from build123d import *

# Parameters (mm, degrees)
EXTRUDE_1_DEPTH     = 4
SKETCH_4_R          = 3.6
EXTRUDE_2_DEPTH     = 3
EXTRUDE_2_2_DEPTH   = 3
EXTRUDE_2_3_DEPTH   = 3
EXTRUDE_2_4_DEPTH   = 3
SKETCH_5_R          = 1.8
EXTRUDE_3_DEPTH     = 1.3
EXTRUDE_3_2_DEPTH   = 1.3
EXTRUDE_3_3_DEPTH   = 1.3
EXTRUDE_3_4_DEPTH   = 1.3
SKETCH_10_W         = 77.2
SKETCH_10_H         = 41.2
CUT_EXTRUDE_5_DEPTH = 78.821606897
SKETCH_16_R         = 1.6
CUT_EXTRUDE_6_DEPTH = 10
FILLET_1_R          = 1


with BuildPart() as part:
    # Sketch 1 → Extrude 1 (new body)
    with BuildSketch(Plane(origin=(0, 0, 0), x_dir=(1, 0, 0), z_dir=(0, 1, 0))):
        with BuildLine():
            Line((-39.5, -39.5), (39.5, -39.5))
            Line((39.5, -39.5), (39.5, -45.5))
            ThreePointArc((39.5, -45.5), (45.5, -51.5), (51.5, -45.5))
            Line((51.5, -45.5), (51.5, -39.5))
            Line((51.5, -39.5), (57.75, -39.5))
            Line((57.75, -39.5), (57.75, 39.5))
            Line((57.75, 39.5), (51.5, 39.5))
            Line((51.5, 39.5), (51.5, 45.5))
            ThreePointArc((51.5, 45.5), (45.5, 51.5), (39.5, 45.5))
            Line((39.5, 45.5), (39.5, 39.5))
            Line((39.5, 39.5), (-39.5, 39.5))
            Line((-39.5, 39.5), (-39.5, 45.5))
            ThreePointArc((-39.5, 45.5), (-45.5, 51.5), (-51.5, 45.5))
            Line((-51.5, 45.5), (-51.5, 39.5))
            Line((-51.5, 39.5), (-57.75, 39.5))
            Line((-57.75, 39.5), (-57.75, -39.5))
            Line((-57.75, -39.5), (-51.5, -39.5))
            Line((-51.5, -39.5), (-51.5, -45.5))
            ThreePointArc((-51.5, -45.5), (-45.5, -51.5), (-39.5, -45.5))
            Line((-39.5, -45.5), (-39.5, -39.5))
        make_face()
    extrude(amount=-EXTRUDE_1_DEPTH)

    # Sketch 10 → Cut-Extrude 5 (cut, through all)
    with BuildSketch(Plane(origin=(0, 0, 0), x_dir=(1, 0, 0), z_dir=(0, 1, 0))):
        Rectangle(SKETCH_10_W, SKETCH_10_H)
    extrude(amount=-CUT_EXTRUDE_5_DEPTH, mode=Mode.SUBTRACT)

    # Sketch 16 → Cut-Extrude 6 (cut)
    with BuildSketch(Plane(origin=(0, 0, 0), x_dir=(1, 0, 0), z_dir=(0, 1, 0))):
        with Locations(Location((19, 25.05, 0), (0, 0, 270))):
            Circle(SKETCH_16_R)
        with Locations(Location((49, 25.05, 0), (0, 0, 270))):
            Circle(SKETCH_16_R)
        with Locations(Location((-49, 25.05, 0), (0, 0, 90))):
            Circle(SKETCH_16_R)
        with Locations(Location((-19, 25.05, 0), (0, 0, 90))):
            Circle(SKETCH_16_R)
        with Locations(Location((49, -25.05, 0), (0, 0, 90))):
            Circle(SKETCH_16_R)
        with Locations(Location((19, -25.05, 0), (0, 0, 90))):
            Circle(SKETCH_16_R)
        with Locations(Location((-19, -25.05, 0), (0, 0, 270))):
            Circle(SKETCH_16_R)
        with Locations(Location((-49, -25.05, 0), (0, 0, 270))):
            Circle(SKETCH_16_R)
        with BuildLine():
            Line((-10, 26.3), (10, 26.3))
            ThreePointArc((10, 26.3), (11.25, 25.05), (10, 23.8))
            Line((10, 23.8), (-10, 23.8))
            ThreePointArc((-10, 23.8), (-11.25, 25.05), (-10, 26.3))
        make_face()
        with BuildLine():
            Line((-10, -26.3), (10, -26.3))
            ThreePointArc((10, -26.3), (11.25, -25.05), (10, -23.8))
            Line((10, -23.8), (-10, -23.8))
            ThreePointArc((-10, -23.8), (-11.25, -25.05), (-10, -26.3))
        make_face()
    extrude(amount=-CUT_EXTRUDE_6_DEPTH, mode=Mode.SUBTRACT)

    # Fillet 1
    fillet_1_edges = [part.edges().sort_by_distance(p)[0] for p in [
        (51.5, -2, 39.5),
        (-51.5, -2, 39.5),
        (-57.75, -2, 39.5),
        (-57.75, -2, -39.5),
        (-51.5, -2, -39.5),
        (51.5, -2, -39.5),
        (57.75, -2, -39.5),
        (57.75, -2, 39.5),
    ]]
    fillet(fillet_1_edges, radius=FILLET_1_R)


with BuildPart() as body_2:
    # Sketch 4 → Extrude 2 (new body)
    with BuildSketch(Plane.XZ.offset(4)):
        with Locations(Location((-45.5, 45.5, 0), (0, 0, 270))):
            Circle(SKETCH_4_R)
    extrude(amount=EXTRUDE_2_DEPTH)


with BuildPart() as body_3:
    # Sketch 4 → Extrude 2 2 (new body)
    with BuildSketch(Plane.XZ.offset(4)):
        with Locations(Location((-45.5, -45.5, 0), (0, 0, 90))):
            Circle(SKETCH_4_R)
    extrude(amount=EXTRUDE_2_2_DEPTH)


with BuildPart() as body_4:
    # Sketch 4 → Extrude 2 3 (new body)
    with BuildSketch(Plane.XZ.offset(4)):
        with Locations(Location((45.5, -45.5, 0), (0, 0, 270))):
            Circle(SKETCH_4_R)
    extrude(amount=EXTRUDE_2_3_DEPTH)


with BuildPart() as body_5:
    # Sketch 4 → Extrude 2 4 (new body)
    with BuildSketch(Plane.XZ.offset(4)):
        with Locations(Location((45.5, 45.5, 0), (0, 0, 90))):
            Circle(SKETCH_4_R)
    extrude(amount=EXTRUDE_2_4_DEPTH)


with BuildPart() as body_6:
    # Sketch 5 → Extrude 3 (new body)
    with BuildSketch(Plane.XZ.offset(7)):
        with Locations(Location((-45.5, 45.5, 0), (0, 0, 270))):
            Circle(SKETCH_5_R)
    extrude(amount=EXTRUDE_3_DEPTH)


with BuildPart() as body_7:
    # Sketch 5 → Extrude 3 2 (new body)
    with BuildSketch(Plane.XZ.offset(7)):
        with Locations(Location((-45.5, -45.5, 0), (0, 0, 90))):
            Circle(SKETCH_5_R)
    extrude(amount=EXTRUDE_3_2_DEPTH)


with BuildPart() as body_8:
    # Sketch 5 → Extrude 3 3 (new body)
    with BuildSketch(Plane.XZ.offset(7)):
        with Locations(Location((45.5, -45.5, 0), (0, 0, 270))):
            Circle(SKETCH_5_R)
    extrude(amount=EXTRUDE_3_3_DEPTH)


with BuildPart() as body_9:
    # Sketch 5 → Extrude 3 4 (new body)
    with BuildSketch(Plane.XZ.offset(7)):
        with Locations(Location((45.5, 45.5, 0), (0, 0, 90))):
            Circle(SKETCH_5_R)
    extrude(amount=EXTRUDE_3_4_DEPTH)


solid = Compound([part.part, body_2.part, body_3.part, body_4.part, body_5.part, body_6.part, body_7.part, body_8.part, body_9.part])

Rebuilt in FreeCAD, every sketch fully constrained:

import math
import FreeCAD as App
import Part
import Sketcher
from FreeCAD import Vector
Q = App.Units.Quantity


def edges_at(feature, points):
    """Names of the edges that pass closest to the given points."""
    edges = feature.Shape.Edges
    near = lambda p: min(range(len(edges)), key=lambda i: edges[i].distToShape(Part.Vertex(*p))[0])
    return sorted({f"Edge{near(p) + 1}" for p in points})


def add_polygon(sketch, points):
    """Adds a closed chain of lines whose ends are joined by coincident constraints."""
    first, n = sketch.GeometryCount, len(points)
    for a, b in zip(points, points[1:] + points[:1]):
        sketch.addGeometry(Part.LineSegment(App.Vector(*a, 0), App.Vector(*b, 0)), False)
    for i in range(n):
        sketch.addConstraint(Sketcher.Constraint("Coincident", first + i, 2, first + (i + 1) % n, 1))

doc = App.newDocument("Part")
body = doc.addObject("PartDesign::Body", "Body")

# Sketch on XZ plane
sketch1 = body.newObject("Sketcher::SketchObject", "Sketch")
sketch1.AttachmentSupport = (doc.getObject("XZ_Plane"), [""])
sketch1.MapMode = "FlatFace"
sketch1.addGeometry(Part.LineSegment(Vector(-40, 40, 0), Vector(40, 40, 0)), False)
sketch1.addGeometry(Part.LineSegment(Vector(40, 40, 0), Vector(40, 46, 0)), False)
sketch1.addGeometry(Part.ArcOfCircle(Part.Circle(Vector(46, 46, 0), Vector(0, 0, 1), 6), math.radians(0), math.radians(180)), False)
sketch1.addGeometry(Part.LineSegment(Vector(52, 46, 0), Vector(52, 40, 0)), False)
sketch1.addGeometry(Part.LineSegment(Vector(52, 40, 0), Vector(58, 40, 0)), False)
sketch1.addGeometry(Part.LineSegment(Vector(58, 40, 0), Vector(58, -40, 0)), False)
sketch1.addGeometry(Part.LineSegment(Vector(58, -40, 0), Vector(52, -40, 0)), False)
sketch1.addGeometry(Part.LineSegment(Vector(52, -40, 0), Vector(52, -46, 0)), False)
sketch1.addGeometry(Part.ArcOfCircle(Part.Circle(Vector(46, -46, 0), Vector(0, 0, 1), 6), math.radians(180), math.radians(360)), False)
sketch1.addGeometry(Part.LineSegment(Vector(40, -46, 0), Vector(40, -40, 0)), False)
sketch1.addGeometry(Part.LineSegment(Vector(40, -40, 0), Vector(-40, -40, 0)), False)
sketch1.addGeometry(Part.LineSegment(Vector(-40, -40, 0), Vector(-40, -46, 0)), False)
sketch1.addGeometry(Part.ArcOfCircle(Part.Circle(Vector(-46, -46, 0), Vector(0, 0, 1), 6), math.radians(180), math.radians(360)), False)
sketch1.addGeometry(Part.LineSegment(Vector(-52, -46, 0), Vector(-52, -40, 0)), False)
sketch1.addGeometry(Part.LineSegment(Vector(-52, -40, 0), Vector(-58, -40, 0)), False)
sketch1.addGeometry(Part.LineSegment(Vector(-58, -40, 0), Vector(-58, 40, 0)), False)
sketch1.addGeometry(Part.LineSegment(Vector(-58, 40, 0), Vector(-52, 40, 0)), False)
sketch1.addGeometry(Part.LineSegment(Vector(-52, 40, 0), Vector(-52, 46, 0)), False)
sketch1.addGeometry(Part.ArcOfCircle(Part.Circle(Vector(-46, 46, 0), Vector(0, 0, 1), 6), math.radians(0), math.radians(180)), False)
sketch1.addGeometry(Part.LineSegment(Vector(-40, 46, 0), Vector(-40, 40, 0)), False)
sketch1.addConstraint(Sketcher.Constraint("Coincident", 0, 2, 1, 1))
sketch1.addConstraint(Sketcher.Constraint("Tangent", 1, 2, 2, 2))
sketch1.addConstraint(Sketcher.Constraint("Tangent", 2, 1, 3, 1))
sketch1.addConstraint(Sketcher.Constraint("Coincident", 3, 2, 4, 1))
sketch1.addConstraint(Sketcher.Constraint("Coincident", 4, 2, 5, 1))
sketch1.addConstraint(Sketcher.Constraint("Coincident", 5, 2, 6, 1))
sketch1.addConstraint(Sketcher.Constraint("Coincident", 6, 2, 7, 1))
sketch1.addConstraint(Sketcher.Constraint("Tangent", 7, 2, 8, 2))
sketch1.addConstraint(Sketcher.Constraint("Tangent", 8, 1, 9, 1))
sketch1.addConstraint(Sketcher.Constraint("Coincident", 9, 2, 10, 1))
sketch1.addConstraint(Sketcher.Constraint("Coincident", 10, 2, 11, 1))
sketch1.addConstraint(Sketcher.Constraint("Tangent", 11, 2, 12, 2))
sketch1.addConstraint(Sketcher.Constraint("Tangent", 12, 1, 13, 1))
sketch1.addConstraint(Sketcher.Constraint("Coincident", 13, 2, 14, 1))
sketch1.addConstraint(Sketcher.Constraint("Coincident", 14, 2, 15, 1))
sketch1.addConstraint(Sketcher.Constraint("Coincident", 15, 2, 16, 1))
sketch1.addConstraint(Sketcher.Constraint("Coincident", 16, 2, 17, 1))
sketch1.addConstraint(Sketcher.Constraint("Tangent", 17, 2, 18, 2))
sketch1.addConstraint(Sketcher.Constraint("Tangent", 18, 1, 19, 1))
sketch1.addConstraint(Sketcher.Constraint("Coincident", 19, 2, 0, 1))
sketch1.addConstraint(Sketcher.Constraint("Horizontal", 0))
sketch1.addConstraint(Sketcher.Constraint("Vertical", 1))
sketch1.addConstraint(Sketcher.Constraint("Vertical", 3))
sketch1.addConstraint(Sketcher.Constraint("Horizontal", 4))
sketch1.addConstraint(Sketcher.Constraint("Vertical", 5))
sketch1.addConstraint(Sketcher.Constraint("Horizontal", 6))
sketch1.addConstraint(Sketcher.Constraint("Vertical", 7))
sketch1.addConstraint(Sketcher.Constraint("Vertical", 9))
sketch1.addConstraint(Sketcher.Constraint("Horizontal", 10))
sketch1.addConstraint(Sketcher.Constraint("Vertical", 11))
sketch1.addConstraint(Sketcher.Constraint("Vertical", 13))
sketch1.addConstraint(Sketcher.Constraint("Horizontal", 14))
sketch1.addConstraint(Sketcher.Constraint("Vertical", 15))
sketch1.addConstraint(Sketcher.Constraint("Horizontal", 16))
sketch1.addConstraint(Sketcher.Constraint("Vertical", 17))
sketch1.addConstraint(Sketcher.Constraint("Vertical", 19))
sketch1.addConstraint(Sketcher.Constraint("Equal", 2, 8))
sketch1.addConstraint(Sketcher.Constraint("Equal", 8, 12))
sketch1.addConstraint(Sketcher.Constraint("Equal", 12, 18))
sketch1.addConstraint(Sketcher.Constraint("Symmetric", 2, 3, 12, 3, -1, 1))
sketch1.addConstraint(Sketcher.Constraint("Symmetric", 8, 3, 18, 3, -1, 1))
sketch1.addConstraint(Sketcher.Constraint("Symmetric", 4, 2, 14, 2, -1, 1))
sketch1.addConstraint(Sketcher.Constraint("Symmetric", 8, 3, 12, 3, -2))
sketch1.addConstraint(Sketcher.Constraint("Horizontal", 0, 2, 3, 2))
sketch1.addConstraint(Sketcher.Constraint("Horizontal", 6, 2, 9, 2))
sketch1.addConstraint(Sketcher.Constraint("Horizontal", 10, 2, 13, 2))
sketch1.addConstraint(Sketcher.Constraint("Horizontal", 4, 2, 15, 2))
sketch1.addConstraint(Sketcher.Constraint("Equal", 10, 5))
sketch1.addConstraint(Sketcher.Constraint("Radius", 2, Q("6 mm")))
sketch1.addConstraint(Sketcher.Constraint("DistanceX", 0, 1, 0, 2, Q("79 mm")))
sketch1.addConstraint(Sketcher.Constraint("DistanceY", 1, 1, 1, 2, Q("6 mm")))
sketch1.addConstraint(Sketcher.Constraint("DistanceX", 4, 1, 4, 2, Q("6.25 mm")))
pad1 = body.newObject("PartDesign::Pad", "Pad")
pad1.Profile = sketch1
pad1.Length = 4

# Sketch on XZ plane
sketch2 = body.newObject("Sketcher::SketchObject", "Sketch001")
sketch2.AttachmentSupport = (doc.getObject("XZ_Plane"), [""])
sketch2.MapMode = "FlatFace"
add_polygon(sketch2, [(-39, -21), (-39, 21), (39, 21), (39, -21)])  # lines 0-3
sketch2.addConstraint(Sketcher.Constraint("Vertical", 0))
sketch2.addConstraint(Sketcher.Constraint("Horizontal", 1))
sketch2.addConstraint(Sketcher.Constraint("Vertical", 2))
sketch2.addConstraint(Sketcher.Constraint("Horizontal", 3))
sketch2.addConstraint(Sketcher.Constraint("Symmetric", 0, 2, 2, 2, -1, 1))
sketch2.addConstraint(Sketcher.Constraint("DistanceX", 1, 1, 1, 2, Q("77.2 mm")))
sketch2.addConstraint(Sketcher.Constraint("DistanceY", 0, 1, 0, 2, Q("41.2 mm")))
pocket1 = body.newObject("PartDesign::Pocket", "Pocket")
pocket1.Profile = sketch2
pocket1.Type = "ThroughAll"
pocket1.Reversed = True

# Sketch on XZ plane
sketch3 = body.newObject("Sketcher::SketchObject", "Sketch002")
sketch3.AttachmentSupport = (doc.getObject("XZ_Plane"), [""])
sketch3.MapMode = "FlatFace"
sketch3.addGeometry(Part.Circle(Vector(19, -25.1, 0), Vector(0, 0, 1), 1.6), False)
sketch3.addGeometry(Part.Circle(Vector(49, -25.1, 0), Vector(0, 0, 1), 1.6), False)
sketch3.addGeometry(Part.Circle(Vector(-49, -25.1, 0), Vector(0, 0, 1), 1.6), False)
sketch3.addGeometry(Part.Circle(Vector(-19, -25.1, 0), Vector(0, 0, 1), 1.6), False)
sketch3.addGeometry(Part.Circle(Vector(49, 25.1, 0), Vector(0, 0, 1), 1.6), False)
sketch3.addGeometry(Part.Circle(Vector(19, 25.1, 0), Vector(0, 0, 1), 1.6), False)
sketch3.addGeometry(Part.Circle(Vector(-19, 25.1, 0), Vector(0, 0, 1), 1.6), False)
sketch3.addGeometry(Part.Circle(Vector(-49, 25.1, 0), Vector(0, 0, 1), 1.6), False)
sketch3.addGeometry(Part.LineSegment(Vector(10, -26.3, 0), Vector(-10, -26.3, 0)), False)
sketch3.addGeometry(Part.ArcOfCircle(Part.Circle(Vector(-10, -25.1, 0), Vector(0, 0, 1), 1.2), math.radians(90), math.radians(270)), False)
sketch3.addGeometry(Part.LineSegment(Vector(-10, -23.8, 0), Vector(10, -23.8, 0)), False)
sketch3.addGeometry(Part.ArcOfCircle(Part.Circle(Vector(10, -25.1, 0), Vector(0, 0, 1), 1.2), math.radians(-90), math.radians(90)), False)
sketch3.addGeometry(Part.LineSegment(Vector(-10, 26.3, 0), Vector(10, 26.3, 0)), False)
sketch3.addGeometry(Part.ArcOfCircle(Part.Circle(Vector(10, 25.1, 0), Vector(0, 0, 1), 1.2), math.radians(-90), math.radians(90)), False)
sketch3.addGeometry(Part.LineSegment(Vector(10, 23.8, 0), Vector(-10, 23.8, 0)), False)
sketch3.addGeometry(Part.ArcOfCircle(Part.Circle(Vector(-10, 25.1, 0), Vector(0, 0, 1), 1.2), math.radians(90), math.radians(270)), False)
sketch3.addConstraint(Sketcher.Constraint("Tangent", 8, 2, 9, 2))
sketch3.addConstraint(Sketcher.Constraint("Tangent", 9, 1, 10, 1))
sketch3.addConstraint(Sketcher.Constraint("Tangent", 10, 2, 11, 2))
sketch3.addConstraint(Sketcher.Constraint("Tangent", 11, 1, 8, 1))
sketch3.addConstraint(Sketcher.Constraint("Tangent", 12, 2, 13, 2))
sketch3.addConstraint(Sketcher.Constraint("Tangent", 13, 1, 14, 1))
sketch3.addConstraint(Sketcher.Constraint("Tangent", 14, 2, 15, 2))
sketch3.addConstraint(Sketcher.Constraint("Tangent", 15, 1, 12, 1))
sketch3.addConstraint(Sketcher.Constraint("Horizontal", 8))
sketch3.addConstraint(Sketcher.Constraint("Horizontal", 10))
sketch3.addConstraint(Sketcher.Constraint("Horizontal", 12))
sketch3.addConstraint(Sketcher.Constraint("Horizontal", 14))
sketch3.addConstraint(Sketcher.Constraint("Equal", 0, 1))
sketch3.addConstraint(Sketcher.Constraint("Equal", 1, 2))
sketch3.addConstraint(Sketcher.Constraint("Equal", 2, 3))
sketch3.addConstraint(Sketcher.Constraint("Equal", 3, 4))
sketch3.addConstraint(Sketcher.Constraint("Equal", 4, 5))
sketch3.addConstraint(Sketcher.Constraint("Equal", 5, 6))
sketch3.addConstraint(Sketcher.Constraint("Equal", 6, 7))
sketch3.addConstraint(Sketcher.Constraint("Equal", 11, 13))
sketch3.addConstraint(Sketcher.Constraint("Symmetric", 2, 3, 4, 3, -1, 1))
sketch3.addConstraint(Sketcher.Constraint("Symmetric", 3, 3, 5, 3, -1, 1))
sketch3.addConstraint(Sketcher.Constraint("Symmetric", 0, 3, 6, 3, -1, 1))
sketch3.addConstraint(Sketcher.Constraint("Symmetric", 1, 3, 7, 3, -1, 1))
sketch3.addConstraint(Sketcher.Constraint("Symmetric", 9, 3, 13, 3, -1, 1))
sketch3.addConstraint(Sketcher.Constraint("Symmetric", 1, 3, 2, 3, -2))
sketch3.addConstraint(Sketcher.Constraint("Symmetric", 0, 3, 3, 3, -2))
sketch3.addConstraint(Sketcher.Constraint("Horizontal", 0, 3, 1, 3))
sketch3.addConstraint(Sketcher.Constraint("Horizontal", 3, 3, 9, 3))
sketch3.addConstraint(Sketcher.Constraint("Vertical", 11, 3, 13, 3))
sketch3.addConstraint(Sketcher.Constraint("Vertical", 9, 3, 15, 3))
sketch3.addConstraint(Sketcher.Constraint("Diameter", 0, Q("3.2 mm")))
sketch3.addConstraint(Sketcher.Constraint("DistanceX", 8, 2, 8, 1, Q("20 mm")))
sketch3.addConstraint(Sketcher.Constraint("Radius", 9, Q("1.25 mm")))
sketch3.addConstraint(Sketcher.Constraint("DistanceX", -1, 1, 0, 3, Q("19 mm")))
sketch3.addConstraint(Sketcher.Constraint("DistanceX", -1, 1, 1, 3, Q("49 mm")))
sketch3.addConstraint(Sketcher.Constraint("DistanceY", 8, 2, -1, 1, Q("26.3 mm")))
pocket2 = body.newObject("PartDesign::Pocket", "Pocket001")
pocket2.Profile = sketch3
pocket2.Length = 10
pocket2.Reversed = True
doc.recompute()

fillet = body.newObject("PartDesign::Fillet", "Fillet")
fillet.Base = (pocket2, edges_at(pocket2, [
    (51.5, -2, 39.5),
    (-51.5, -2, 39.5),
    (-57.75, -2, 39.5),
    (-57.75, -2, -39.5),
    (-51.5, -2, -39.5),
    (51.5, -2, -39.5),
    (57.75, -2, -39.5),
    (57.75, -2, 39.5),
]))
fillet.Radius = 1
body2 = doc.addObject("PartDesign::Body", "Body001")

# Sketch on XZ plane
sketch4 = body2.newObject("Sketcher::SketchObject", "Sketch003")
sketch4.AttachmentSupport = (doc.getObject("XZ_Plane001"), [""])
sketch4.MapMode = "FlatFace"
sketch4.AttachmentOffset = App.Placement(Vector(0, 0, 4), App.Rotation())
sketch4.addGeometry(Part.Circle(Vector(-45.5, 45.5, 0), Vector(0, 0, 1), 3.6), False)
sketch4.addConstraint(Sketcher.Constraint("Diameter", 0, Q("7.2 mm")))
sketch4.addConstraint(Sketcher.Constraint("DistanceX", 0, 3, -1, 1, Q("45.5 mm")))
sketch4.addConstraint(Sketcher.Constraint("DistanceY", -1, 1, 0, 3, Q("45.5 mm")))
pad2 = body2.newObject("PartDesign::Pad", "Pad001")
pad2.Profile = sketch4
pad2.Length = 3
body3 = doc.addObject("PartDesign::Body", "Body002")

# Sketch on XZ plane
sketch5 = body3.newObject("Sketcher::SketchObject", "Sketch004")
sketch5.AttachmentSupport = (doc.getObject("XZ_Plane002"), [""])
sketch5.MapMode = "FlatFace"
sketch5.AttachmentOffset = App.Placement(Vector(0, 0, 4), App.Rotation())
sketch5.addGeometry(Part.Circle(Vector(-45.5, -45.5, 0), Vector(0, 0, 1), 3.6), False)
sketch5.addConstraint(Sketcher.Constraint("Diameter", 0, Q("7.2 mm")))
sketch5.addConstraint(Sketcher.Constraint("DistanceX", 0, 3, -1, 1, Q("45.5 mm")))
sketch5.addConstraint(Sketcher.Constraint("DistanceY", 0, 3, -1, 1, Q("45.5 mm")))
pad3 = body3.newObject("PartDesign::Pad", "Pad002")
pad3.Profile = sketch5
pad3.Length = 3
body4 = doc.addObject("PartDesign::Body", "Body003")

# Sketch on XZ plane
sketch6 = body4.newObject("Sketcher::SketchObject", "Sketch005")
sketch6.AttachmentSupport = (doc.getObject("XZ_Plane003"), [""])
sketch6.MapMode = "FlatFace"
sketch6.AttachmentOffset = App.Placement(Vector(0, 0, 4), App.Rotation())
sketch6.addGeometry(Part.Circle(Vector(45.5, -45.5, 0), Vector(0, 0, 1), 3.6), False)
sketch6.addConstraint(Sketcher.Constraint("Diameter", 0, Q("7.2 mm")))
sketch6.addConstraint(Sketcher.Constraint("DistanceX", -1, 1, 0, 3, Q("45.5 mm")))
sketch6.addConstraint(Sketcher.Constraint("DistanceY", 0, 3, -1, 1, Q("45.5 mm")))
pad4 = body4.newObject("PartDesign::Pad", "Pad003")
pad4.Profile = sketch6
pad4.Length = 3
body5 = doc.addObject("PartDesign::Body", "Body004")

# Sketch on XZ plane
sketch7 = body5.newObject("Sketcher::SketchObject", "Sketch006")
sketch7.AttachmentSupport = (doc.getObject("XZ_Plane004"), [""])
sketch7.MapMode = "FlatFace"
sketch7.AttachmentOffset = App.Placement(Vector(0, 0, 4), App.Rotation())
sketch7.addGeometry(Part.Circle(Vector(45.5, 45.5, 0), Vector(0, 0, 1), 3.6), False)
sketch7.addConstraint(Sketcher.Constraint("Diameter", 0, Q("7.2 mm")))
sketch7.addConstraint(Sketcher.Constraint("DistanceX", -1, 1, 0, 3, Q("45.5 mm")))
sketch7.addConstraint(Sketcher.Constraint("DistanceY", -1, 1, 0, 3, Q("45.5 mm")))
pad5 = body5.newObject("PartDesign::Pad", "Pad004")
pad5.Profile = sketch7
pad5.Length = 3
body6 = doc.addObject("PartDesign::Body", "Body005")

# Sketch on XZ plane
sketch8 = body6.newObject("Sketcher::SketchObject", "Sketch007")
sketch8.AttachmentSupport = (doc.getObject("XZ_Plane005"), [""])
sketch8.MapMode = "FlatFace"
sketch8.AttachmentOffset = App.Placement(Vector(0, 0, 7), App.Rotation())
sketch8.addGeometry(Part.Circle(Vector(-45.5, 45.5, 0), Vector(0, 0, 1), 1.8), False)
sketch8.addConstraint(Sketcher.Constraint("Diameter", 0, Q("3.6 mm")))
sketch8.addConstraint(Sketcher.Constraint("DistanceX", 0, 3, -1, 1, Q("45.5 mm")))
sketch8.addConstraint(Sketcher.Constraint("DistanceY", -1, 1, 0, 3, Q("45.5 mm")))
pad6 = body6.newObject("PartDesign::Pad", "Pad005")
pad6.Profile = sketch8
pad6.Length = 1.3
body7 = doc.addObject("PartDesign::Body", "Body006")

# Sketch on XZ plane
sketch9 = body7.newObject("Sketcher::SketchObject", "Sketch008")
sketch9.AttachmentSupport = (doc.getObject("XZ_Plane006"), [""])
sketch9.MapMode = "FlatFace"
sketch9.AttachmentOffset = App.Placement(Vector(0, 0, 7), App.Rotation())
sketch9.addGeometry(Part.Circle(Vector(-45.5, -45.5, 0), Vector(0, 0, 1), 1.8), False)
sketch9.addConstraint(Sketcher.Constraint("Diameter", 0, Q("3.6 mm")))
sketch9.addConstraint(Sketcher.Constraint("DistanceX", 0, 3, -1, 1, Q("45.5 mm")))
sketch9.addConstraint(Sketcher.Constraint("DistanceY", 0, 3, -1, 1, Q("45.5 mm")))
pad7 = body7.newObject("PartDesign::Pad", "Pad006")
pad7.Profile = sketch9
pad7.Length = 1.3
body8 = doc.addObject("PartDesign::Body", "Body007")

# Sketch on XZ plane
sketch10 = body8.newObject("Sketcher::SketchObject", "Sketch009")
sketch10.AttachmentSupport = (doc.getObject("XZ_Plane007"), [""])
sketch10.MapMode = "FlatFace"
sketch10.AttachmentOffset = App.Placement(Vector(0, 0, 7), App.Rotation())
sketch10.addGeometry(Part.Circle(Vector(45.5, -45.5, 0), Vector(0, 0, 1), 1.8), False)
sketch10.addConstraint(Sketcher.Constraint("Diameter", 0, Q("3.6 mm")))
sketch10.addConstraint(Sketcher.Constraint("DistanceX", -1, 1, 0, 3, Q("45.5 mm")))
sketch10.addConstraint(Sketcher.Constraint("DistanceY", 0, 3, -1, 1, Q("45.5 mm")))
pad8 = body8.newObject("PartDesign::Pad", "Pad007")
pad8.Profile = sketch10
pad8.Length = 1.3
body9 = doc.addObject("PartDesign::Body", "Body008")

# Sketch on XZ plane
sketch11 = body9.newObject("Sketcher::SketchObject", "Sketch010")
sketch11.AttachmentSupport = (doc.getObject("XZ_Plane008"), [""])
sketch11.MapMode = "FlatFace"
sketch11.AttachmentOffset = App.Placement(Vector(0, 0, 7), App.Rotation())
sketch11.addGeometry(Part.Circle(Vector(45.5, 45.5, 0), Vector(0, 0, 1), 1.8), False)
sketch11.addConstraint(Sketcher.Constraint("Diameter", 0, Q("3.6 mm")))
sketch11.addConstraint(Sketcher.Constraint("DistanceX", -1, 1, 0, 3, Q("45.5 mm")))
sketch11.addConstraint(Sketcher.Constraint("DistanceY", -1, 1, 0, 3, Q("45.5 mm")))
pad9 = body9.newObject("PartDesign::Pad", "Pad008")
pad9.Profile = sketch11
pad9.Length = 1.3

doc.recompute()
